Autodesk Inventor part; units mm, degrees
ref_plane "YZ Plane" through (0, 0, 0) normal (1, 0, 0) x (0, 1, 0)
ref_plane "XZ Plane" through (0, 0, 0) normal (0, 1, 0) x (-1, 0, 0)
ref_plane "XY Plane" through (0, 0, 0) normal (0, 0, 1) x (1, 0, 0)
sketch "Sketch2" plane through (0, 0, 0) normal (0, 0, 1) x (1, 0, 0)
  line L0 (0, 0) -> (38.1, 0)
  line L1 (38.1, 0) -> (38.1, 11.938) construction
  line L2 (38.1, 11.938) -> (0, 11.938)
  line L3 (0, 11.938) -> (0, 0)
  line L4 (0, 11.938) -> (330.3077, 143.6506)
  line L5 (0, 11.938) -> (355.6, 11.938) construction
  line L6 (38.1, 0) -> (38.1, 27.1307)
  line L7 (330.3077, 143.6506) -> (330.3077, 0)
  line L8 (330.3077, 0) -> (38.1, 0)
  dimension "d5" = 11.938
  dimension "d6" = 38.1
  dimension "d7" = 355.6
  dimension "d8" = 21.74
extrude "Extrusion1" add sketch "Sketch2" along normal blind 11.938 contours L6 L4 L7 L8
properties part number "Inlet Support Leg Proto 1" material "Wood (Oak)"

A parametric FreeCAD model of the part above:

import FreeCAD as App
import Part
import Sketcher

V = App.Vector
Q = App.Units.Quantity


def add_polygon(sketch, points):
    """Adds a closed chain of lines whose ends are joined by coincident constraints."""
    first, n = sketch.GeometryCount, len(points)
    for a, b in zip(points, points[1:] + points[:1]):
        sketch.addGeometry(Part.LineSegment(App.Vector(*a, 0), App.Vector(*b, 0)), False)
    for i in range(n):
        sketch.addConstraint(Sketcher.Constraint("Coincident", first + i, 2, first + (i + 1) % n, 1))

doc = App.newDocument("Part")
body = doc.addObject("PartDesign::Body", "Body")

sketch1 = body.newObject("Sketcher::SketchObject", "Sketch")
sketch1.AttachmentSupport = (doc.getObject("XY_Plane"), [""])
sketch1.MapMode = "FlatFace"
add_polygon(sketch1, [(38, 27), (38, 0), (330, 0), (330, 144)])
sketch1.addConstraint(Sketcher.Constraint("Vertical", 0))
sketch1.addConstraint(Sketcher.Constraint("Horizontal", 1))
sketch1.addConstraint(Sketcher.Constraint("Vertical", 2))
sketch1.addConstraint(Sketcher.Constraint("PointOnObject", 0, 2, -1))
sketch1.addConstraint(Sketcher.Constraint("DistanceX", -1, 1, 0, 2, Q("1.5 in")))
sketch1.addConstraint(Sketcher.Constraint("Angle", 3, Q("-158.26 deg")))
sketch1.addConstraint(Sketcher.Constraint("DistanceX", 1, 1, 1, 2, Q("292.2077 mm")))
sketch1.addConstraint(Sketcher.Constraint("DistanceY", 0, 2, 0, 1, Q("27.1307 mm")))
pad1 = body.newObject("PartDesign::Pad", "Pad")
pad1.Profile = sketch1
pad1.Length = Q("0.47 in")

doc.recompute()
